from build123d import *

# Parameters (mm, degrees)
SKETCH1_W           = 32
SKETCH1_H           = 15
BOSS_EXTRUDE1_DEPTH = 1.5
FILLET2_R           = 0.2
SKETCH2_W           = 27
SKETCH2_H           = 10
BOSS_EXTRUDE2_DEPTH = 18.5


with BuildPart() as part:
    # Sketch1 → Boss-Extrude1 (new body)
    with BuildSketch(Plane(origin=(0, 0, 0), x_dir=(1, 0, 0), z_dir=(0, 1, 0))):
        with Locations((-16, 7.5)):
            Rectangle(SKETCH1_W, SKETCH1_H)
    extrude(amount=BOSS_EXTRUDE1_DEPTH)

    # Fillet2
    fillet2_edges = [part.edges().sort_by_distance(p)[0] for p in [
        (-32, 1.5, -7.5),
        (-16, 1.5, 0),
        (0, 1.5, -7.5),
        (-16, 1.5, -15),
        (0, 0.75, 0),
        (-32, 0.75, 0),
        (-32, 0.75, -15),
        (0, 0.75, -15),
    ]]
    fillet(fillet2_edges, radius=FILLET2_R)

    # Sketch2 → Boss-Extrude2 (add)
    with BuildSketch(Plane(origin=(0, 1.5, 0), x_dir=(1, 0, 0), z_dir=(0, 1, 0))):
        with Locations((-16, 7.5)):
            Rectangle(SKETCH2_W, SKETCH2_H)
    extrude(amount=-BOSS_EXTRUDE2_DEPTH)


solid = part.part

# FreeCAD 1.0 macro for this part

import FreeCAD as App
import Part
import Sketcher
from FreeCAD import Vector
Q = App.Units.Quantity


def edges_at(feature, points):
    """Names of the edges that pass closest to the given points."""
    edges = feature.Shape.Edges
    near = lambda p: min(range(len(edges)), key=lambda i: edges[i].distToShape(Part.Vertex(*p))[0])
    return sorted({f"Edge{near(p) + 1}" for p in points})

doc = App.newDocument("Part")
body = doc.addObject("PartDesign::Body", "Body")

# Sketch on XZ plane
sketch1 = body.newObject("Sketcher::SketchObject", "Sketch")
sketch1.AttachmentSupport = (doc.getObject("XZ_Plane"), [""])
sketch1.MapMode = "FlatFace"
sketch1.addGeometry([
    Part.LineSegment(Vector(-32, -15, 0), Vector(-32, 0, 0)),
    Part.LineSegment(Vector(-32, 0, 0), Vector(0, 0, 0)),
    Part.LineSegment(Vector(0, 0, 0), Vector(0, -15, 0)),
    Part.LineSegment(Vector(0, -15, 0), Vector(-32, -15, 0)),
], False)
sketch1.addConstraint([
    Sketcher.Constraint("Coincident", 0, 2, 1, 1),
    Sketcher.Constraint("Coincident", 1, 2, 2, 1),
    Sketcher.Constraint("Coincident", 2, 2, 3, 1),
    Sketcher.Constraint("Coincident", 3, 2, 0, 1),
    Sketcher.Constraint("Vertical", 0),
    Sketcher.Constraint("Horizontal", 1),
    Sketcher.Constraint("Vertical", 2),
    Sketcher.Constraint("Horizontal", 3),
    Sketcher.Constraint("Coincident", 1, 2, -1, 1),
    Sketcher.Constraint("DistanceX", 1, 1, 1, 2, Q("32 mm")),
    Sketcher.Constraint("DistanceY", 0, 1, 0, 2, Q("15 mm")),
])
pad1 = body.newObject("PartDesign::Pad", "Pad")
pad1.Profile = sketch1
pad1.Length = 1.5
pad1.Reversed = True
doc.recompute()

fillet = body.newObject("PartDesign::Fillet", "Fillet")
fillet.Base = (pad1, edges_at(pad1, [
    (-32, 1.5, -7.5),
    (-16, 1.5, 0),
    (0, 1.5, -7.5),
    (-16, 1.5, -15),
    (0, 0.75, 0),
    (-32, 0.75, 0),
    (-32, 0.75, -15),
    (0, 0.75, -15),
]))
fillet.Radius = 0.2

# Sketch on XZ plane
sketch2 = body.newObject("Sketcher::SketchObject", "Sketch001")
sketch2.AttachmentSupport = (doc.getObject("XZ_Plane"), [""])
sketch2.MapMode = "FlatFace"
sketch2.AttachmentOffset = App.Placement(Vector(0, 0, -1.5), App.Rotation())
sketch2.addGeometry([
    Part.LineSegment(Vector(-30, -12, 0), Vector(-30, -2, 0)),
    Part.LineSegment(Vector(-30, -2, 0), Vector(-2, -2, 0)),
    Part.LineSegment(Vector(-2, -2, 0), Vector(-2, -12, 0)),
    Part.LineSegment(Vector(-2, -12, 0), Vector(-30, -12, 0)),
], False)
sketch2.addConstraint([
    Sketcher.Constraint("Coincident", 0, 2, 1, 1),
    Sketcher.Constraint("Coincident", 1, 2, 2, 1),
    Sketcher.Constraint("Coincident", 2, 2, 3, 1),
    Sketcher.Constraint("Coincident", 3, 2, 0, 1),
    Sketcher.Constraint("Vertical", 0),
    Sketcher.Constraint("Horizontal", 1),
    Sketcher.Constraint("Vertical", 2),
    Sketcher.Constraint("Horizontal", 3),
    Sketcher.Constraint("DistanceX", 1, 1, 1, 2, Q("27 mm")),
    Sketcher.Constraint("DistanceY", 0, 1, 0, 2, Q("10 mm")),
    Sketcher.Constraint("DistanceX", 0, 2, -1, 1, Q("29.5 mm")),
    Sketcher.Constraint("DistanceY", 0, 2, -1, 1, Q("2.5 mm")),
])
pad2 = body.newObject("PartDesign::Pad", "Pad001")
pad2.Profile = sketch2
pad2.Length = 18.5

doc.recompute()
